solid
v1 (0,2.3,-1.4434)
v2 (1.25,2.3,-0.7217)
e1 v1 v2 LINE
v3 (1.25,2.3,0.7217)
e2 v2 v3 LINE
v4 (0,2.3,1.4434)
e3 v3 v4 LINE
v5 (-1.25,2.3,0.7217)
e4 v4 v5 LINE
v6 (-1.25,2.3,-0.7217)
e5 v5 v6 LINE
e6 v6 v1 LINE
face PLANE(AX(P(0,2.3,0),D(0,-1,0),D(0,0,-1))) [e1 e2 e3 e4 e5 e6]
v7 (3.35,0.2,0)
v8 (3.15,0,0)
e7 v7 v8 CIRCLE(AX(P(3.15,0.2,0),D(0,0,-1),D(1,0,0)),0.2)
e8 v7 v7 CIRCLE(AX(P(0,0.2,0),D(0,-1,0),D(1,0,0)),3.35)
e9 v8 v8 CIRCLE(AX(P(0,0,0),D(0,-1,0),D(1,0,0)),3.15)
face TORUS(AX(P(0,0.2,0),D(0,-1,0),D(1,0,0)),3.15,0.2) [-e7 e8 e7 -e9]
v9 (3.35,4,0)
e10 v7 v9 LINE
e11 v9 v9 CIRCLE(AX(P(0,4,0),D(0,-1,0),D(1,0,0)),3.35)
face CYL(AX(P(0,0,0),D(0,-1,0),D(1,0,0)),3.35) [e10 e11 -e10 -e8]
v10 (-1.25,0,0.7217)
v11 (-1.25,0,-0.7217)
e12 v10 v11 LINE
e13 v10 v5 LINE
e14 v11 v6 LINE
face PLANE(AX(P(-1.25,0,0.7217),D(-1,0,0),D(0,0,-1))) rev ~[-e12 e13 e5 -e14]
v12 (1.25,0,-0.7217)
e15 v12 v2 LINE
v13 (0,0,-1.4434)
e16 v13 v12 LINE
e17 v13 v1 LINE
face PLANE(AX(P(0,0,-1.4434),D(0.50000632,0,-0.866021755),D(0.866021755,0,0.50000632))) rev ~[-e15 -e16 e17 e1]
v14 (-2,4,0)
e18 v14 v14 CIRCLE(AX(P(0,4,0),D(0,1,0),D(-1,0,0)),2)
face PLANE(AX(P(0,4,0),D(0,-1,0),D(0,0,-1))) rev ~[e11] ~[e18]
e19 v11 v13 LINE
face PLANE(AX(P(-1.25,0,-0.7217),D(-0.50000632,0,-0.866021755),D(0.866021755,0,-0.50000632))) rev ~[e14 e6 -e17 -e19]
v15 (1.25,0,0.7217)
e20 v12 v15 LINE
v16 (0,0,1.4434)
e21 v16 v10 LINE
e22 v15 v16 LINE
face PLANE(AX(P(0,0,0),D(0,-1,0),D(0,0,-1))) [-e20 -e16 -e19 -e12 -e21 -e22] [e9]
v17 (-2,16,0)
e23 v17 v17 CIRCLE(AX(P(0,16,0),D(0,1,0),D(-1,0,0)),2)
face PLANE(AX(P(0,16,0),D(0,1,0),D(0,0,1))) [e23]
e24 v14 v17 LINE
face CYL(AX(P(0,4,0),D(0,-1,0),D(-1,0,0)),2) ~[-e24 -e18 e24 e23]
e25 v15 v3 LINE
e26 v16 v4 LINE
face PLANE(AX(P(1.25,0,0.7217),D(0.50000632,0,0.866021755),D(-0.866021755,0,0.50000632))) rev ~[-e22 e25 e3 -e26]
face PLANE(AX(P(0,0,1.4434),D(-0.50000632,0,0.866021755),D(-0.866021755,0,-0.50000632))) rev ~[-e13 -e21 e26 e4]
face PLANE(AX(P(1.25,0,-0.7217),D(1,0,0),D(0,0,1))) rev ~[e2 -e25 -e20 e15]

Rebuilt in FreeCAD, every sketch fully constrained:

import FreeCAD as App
import Part
import Sketcher
Q = App.Units.Quantity


def edges_at(feature, points):
    """Names of the edges that pass closest to the given points."""
    edges = feature.Shape.Edges
    near = lambda p: min(range(len(edges)), key=lambda i: edges[i].distToShape(Part.Vertex(*p))[0])
    return sorted({f"Edge{near(p) + 1}" for p in points})

doc = App.newDocument("Part")
body = doc.addObject("PartDesign::Body", "Body")

sketch1 = body.newObject("Sketcher::SketchObject", "Sketch")
sketch1.AttachmentSupport = (doc.getObject("XZ_Plane"), [""])
sketch1.MapMode = "FlatFace"
sketch1.addGeometry(Part.Circle(App.Vector(0, 0, 0), App.Vector(0, 0, 1), 3.4), False)
sketch1.addConstraint([
    Sketcher.Constraint("Coincident", 0, 3, -1, 1),
    Sketcher.Constraint("Diameter", 0, 6.7),
])
pad1 = body.newObject("PartDesign::Pad", "Pad")
pad1.Profile = sketch1
pad1.Length = 4
pad1.Reversed = True

sketch2 = body.newObject("Sketcher::SketchObject", "Sketch001")
sketch2.AttachmentSupport = (doc.getObject("XZ_Plane"), [""])
sketch2.MapMode = "FlatFace"
sketch2.AttachmentOffset = App.Placement(App.Vector(0, 0, -4), App.Rotation())
sketch2.addGeometry(Part.Circle(App.Vector(0, 0, 0), App.Vector(0, 0, 1), 2), False)
sketch2.addConstraint([
    Sketcher.Constraint("Coincident", 0, 3, -1, 1),
    Sketcher.Constraint("Diameter", 0, 4.0),
])
pad2 = body.newObject("PartDesign::Pad", "Pad001")
pad2.Profile = sketch2
pad2.Length = 12
pad2.Reversed = True
doc.recompute()

fillet = body.newObject("PartDesign::Fillet", "Fillet")
fillet.Base = (pad2, edges_at(pad2, [(-3.35, 0, 0)]))
fillet.Radius = 0.2

sketch3 = body.newObject("Sketcher::SketchObject", "Sketch002")
sketch3.AttachmentSupport = (doc.getObject("XZ_Plane"), [""])
sketch3.MapMode = "FlatFace"
sketch3.addGeometry([
    Part.LineSegment(App.Vector(1.2, 0.7, 0), App.Vector(0, 1.4, 0)),
    Part.LineSegment(App.Vector(0, 1.4, 0), App.Vector(-1.2, 0.7, 0)),
    Part.LineSegment(App.Vector(-1.2, 0.7, 0), App.Vector(-1.2, -0.7, 0)),
    Part.LineSegment(App.Vector(-1.2, -0.7, 0), App.Vector(0, -1.4, 0)),
    Part.LineSegment(App.Vector(0, -1.4, 0), App.Vector(1.2, -0.7, 0)),
    Part.LineSegment(App.Vector(1.2, -0.7, 0), App.Vector(1.2, 0.7, 0)),
], False)
sketch3.addConstraint([
    Sketcher.Constraint("Coincident", 0, 2, 1, 1),
    Sketcher.Constraint("Coincident", 1, 2, 2, 1),
    Sketcher.Constraint("Coincident", 2, 2, 3, 1),
    Sketcher.Constraint("Coincident", 3, 2, 4, 1),
    Sketcher.Constraint("Coincident", 4, 2, 5, 1),
    Sketcher.Constraint("Coincident", 5, 2, 0, 1),
    Sketcher.Constraint("Vertical", 2),
    Sketcher.Constraint("Vertical", 5),
    Sketcher.Constraint("Symmetric", 0, 2, 3, 2, -1, 1),
    Sketcher.Constraint("Symmetric", 1, 2, 4, 2, -1, 1),
    Sketcher.Constraint("PointOnObject", 0, 2, -2),
    Sketcher.Constraint("Parallel", 0, 3),
    Sketcher.Constraint("Horizontal", 2, 2, 4, 2),
    Sketcher.Constraint("Angle", 0, Q("149.9996 deg")),
    Sketcher.Constraint("DistanceX", 2, 2, 4, 2, 2.5),
    Sketcher.Constraint("DistanceY", 2, 2, 2, 1, 1.4434),
])
pocket1 = body.newObject("PartDesign::Pocket", "Pocket")
pocket1.Profile = sketch3
pocket1.Length = 2.3

doc.recompute()
